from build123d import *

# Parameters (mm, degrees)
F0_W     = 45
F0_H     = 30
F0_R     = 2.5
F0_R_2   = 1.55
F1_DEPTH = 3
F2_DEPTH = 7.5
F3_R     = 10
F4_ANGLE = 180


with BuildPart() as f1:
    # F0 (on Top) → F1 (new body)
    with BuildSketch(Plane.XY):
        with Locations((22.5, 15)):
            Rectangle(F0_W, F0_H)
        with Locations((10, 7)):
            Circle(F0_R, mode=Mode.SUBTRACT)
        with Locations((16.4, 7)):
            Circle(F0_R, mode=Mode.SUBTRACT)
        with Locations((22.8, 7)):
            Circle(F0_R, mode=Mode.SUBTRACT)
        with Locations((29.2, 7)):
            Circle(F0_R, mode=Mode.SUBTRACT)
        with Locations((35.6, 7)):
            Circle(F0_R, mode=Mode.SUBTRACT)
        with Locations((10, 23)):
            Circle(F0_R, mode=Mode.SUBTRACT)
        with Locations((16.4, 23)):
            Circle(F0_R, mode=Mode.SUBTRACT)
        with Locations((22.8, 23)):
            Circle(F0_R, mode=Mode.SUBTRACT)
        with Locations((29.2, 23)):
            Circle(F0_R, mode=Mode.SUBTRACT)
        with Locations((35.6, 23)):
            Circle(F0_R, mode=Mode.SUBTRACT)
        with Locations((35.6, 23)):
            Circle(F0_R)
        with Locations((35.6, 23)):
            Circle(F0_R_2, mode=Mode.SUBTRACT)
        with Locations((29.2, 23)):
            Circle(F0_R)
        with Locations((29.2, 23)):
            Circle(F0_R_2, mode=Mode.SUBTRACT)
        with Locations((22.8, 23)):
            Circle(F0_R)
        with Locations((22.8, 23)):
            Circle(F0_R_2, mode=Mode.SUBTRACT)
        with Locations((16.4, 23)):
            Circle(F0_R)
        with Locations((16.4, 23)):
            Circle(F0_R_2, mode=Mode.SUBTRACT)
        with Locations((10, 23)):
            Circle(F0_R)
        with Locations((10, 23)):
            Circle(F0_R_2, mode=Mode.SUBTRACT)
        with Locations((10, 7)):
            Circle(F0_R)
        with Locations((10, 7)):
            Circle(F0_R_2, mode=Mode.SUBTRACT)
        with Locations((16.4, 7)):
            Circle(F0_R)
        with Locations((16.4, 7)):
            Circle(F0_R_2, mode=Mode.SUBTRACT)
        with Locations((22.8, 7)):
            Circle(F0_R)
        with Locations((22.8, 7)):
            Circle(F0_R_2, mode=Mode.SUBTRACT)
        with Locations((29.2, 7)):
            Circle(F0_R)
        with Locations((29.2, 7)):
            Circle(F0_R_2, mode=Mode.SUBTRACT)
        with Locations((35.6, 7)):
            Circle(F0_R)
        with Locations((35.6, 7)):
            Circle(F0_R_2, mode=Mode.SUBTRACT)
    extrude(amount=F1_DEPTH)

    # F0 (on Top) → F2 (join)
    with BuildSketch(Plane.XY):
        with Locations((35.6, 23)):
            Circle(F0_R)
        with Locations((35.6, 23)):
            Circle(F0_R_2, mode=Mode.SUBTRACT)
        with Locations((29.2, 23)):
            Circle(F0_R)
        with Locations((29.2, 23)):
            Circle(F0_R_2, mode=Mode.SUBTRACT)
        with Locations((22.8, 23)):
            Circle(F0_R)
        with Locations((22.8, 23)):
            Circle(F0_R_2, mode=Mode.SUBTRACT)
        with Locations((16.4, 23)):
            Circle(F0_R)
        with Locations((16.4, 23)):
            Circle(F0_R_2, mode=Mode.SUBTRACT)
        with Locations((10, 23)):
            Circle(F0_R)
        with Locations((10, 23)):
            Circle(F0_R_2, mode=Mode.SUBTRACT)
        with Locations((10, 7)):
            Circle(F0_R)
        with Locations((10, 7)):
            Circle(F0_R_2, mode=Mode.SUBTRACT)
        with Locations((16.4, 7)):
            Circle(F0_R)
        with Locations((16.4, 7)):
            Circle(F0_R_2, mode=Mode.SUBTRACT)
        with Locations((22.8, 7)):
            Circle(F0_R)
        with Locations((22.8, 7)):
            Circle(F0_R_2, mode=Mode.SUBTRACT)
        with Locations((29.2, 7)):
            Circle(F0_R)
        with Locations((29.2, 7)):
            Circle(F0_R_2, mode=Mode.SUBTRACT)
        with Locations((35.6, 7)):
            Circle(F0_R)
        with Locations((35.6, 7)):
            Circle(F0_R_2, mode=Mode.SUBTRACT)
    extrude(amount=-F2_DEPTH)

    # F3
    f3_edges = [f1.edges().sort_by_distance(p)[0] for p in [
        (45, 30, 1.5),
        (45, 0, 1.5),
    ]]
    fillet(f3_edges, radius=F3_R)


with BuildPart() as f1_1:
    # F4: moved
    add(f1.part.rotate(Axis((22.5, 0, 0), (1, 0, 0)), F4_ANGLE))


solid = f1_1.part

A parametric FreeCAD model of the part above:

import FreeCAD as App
import Part
import Sketcher

V = App.Vector
Q = App.Units.Quantity


def edges_at(feature, points):
    """Names of the edges that pass closest to the given points."""
    edges = feature.Shape.Edges
    near = lambda p: min(range(len(edges)), key=lambda i: edges[i].distToShape(Part.Vertex(*p))[0])
    return sorted({f"Edge{near(p) + 1}" for p in points})

doc = App.newDocument("Part")
params = doc.addObject("Spreadsheet::Sheet", "Params")
for row, (alias, value) in enumerate([
    ("sketch1_diameter", "3.1 mm"),
    ("sketch1_width", "45 mm"),
    ("sketch1_height", "30 mm"),
    ("pad1_length", "3 mm"),
    ("sketch2_diameter", "5 mm"),
    ("sketch2_diameter2", "3.1 mm"),
    ("pad2_length", "7.5 mm"),
    ("fillet_radius", "10 mm"),
], start=1):
    params.set(f"A{row}", alias)
    params.set(f"B{row}", "=" + value)
    params.setAlias(f"B{row}", alias)

body = doc.addObject("PartDesign::Body", "Body")

sketch1 = doc.addObject("Sketcher::SketchObject", "Sketch")
body.addObject(sketch1)
sketch1.AttachmentSupport = (doc.XY_Plane, [""])
sketch1.MapMode = "FlatFace"
sketch1.addGeometry([
    Part.LineSegment(V(0, 30, 0), V(0, 0, 0)),
    Part.LineSegment(V(0, 0, 0), V(45, 0, 0)),
    Part.LineSegment(V(45, 0, 0), V(45, 30, 0)),
    Part.LineSegment(V(45, 30, 0), V(0, 30, 0)),
    Part.Circle(V(10, 7, 0), V(0, 0, 1), 1.6),
    Part.Circle(V(16.4, 7, 0), V(0, 0, 1), 1.6),
    Part.Circle(V(22.8, 7, 0), V(0, 0, 1), 1.6),
    Part.Circle(V(29.2, 7, 0), V(0, 0, 1), 1.6),
    Part.Circle(V(35.6, 7, 0), V(0, 0, 1), 1.6),
    Part.Circle(V(10, 23, 0), V(0, 0, 1), 1.6),
    Part.Circle(V(16.4, 23, 0), V(0, 0, 1), 1.6),
    Part.Circle(V(22.8, 23, 0), V(0, 0, 1), 1.6),
    Part.Circle(V(29.2, 23, 0), V(0, 0, 1), 1.6),
    Part.Circle(V(35.6, 23, 0), V(0, 0, 1), 1.6),
], False)
sketch1.addConstraint([
    Sketcher.Constraint("Coincident", 0, 2, 1, 1),
    Sketcher.Constraint("Coincident", 1, 2, 2, 1),
    Sketcher.Constraint("Coincident", 2, 2, 3, 1),
    Sketcher.Constraint("Coincident", 3, 2, 0, 1),
    Sketcher.Constraint("Vertical", 0),
    Sketcher.Constraint("Horizontal", 1),
    Sketcher.Constraint("Vertical", 2),
    Sketcher.Constraint("Horizontal", 3),
    Sketcher.Constraint("Coincident", 0, 2, -1, 1),
    Sketcher.Constraint("Equal", 4, 5),
    Sketcher.Constraint("Equal", 5, 6),
    Sketcher.Constraint("Equal", 6, 7),
    Sketcher.Constraint("Equal", 7, 8),
    Sketcher.Constraint("Equal", 8, 9),
    Sketcher.Constraint("Equal", 9, 10),
    Sketcher.Constraint("Equal", 10, 11),
    Sketcher.Constraint("Equal", 11, 12),
    Sketcher.Constraint("Equal", 12, 13),
    Sketcher.Constraint("Horizontal", 4, 3, 5, 3),
    Sketcher.Constraint("Horizontal", 5, 3, 6, 3),
    Sketcher.Constraint("Horizontal", 6, 3, 7, 3),
    Sketcher.Constraint("Horizontal", 7, 3, 8, 3),
    Sketcher.Constraint("Horizontal", 9, 3, 10, 3),
    Sketcher.Constraint("Horizontal", 10, 3, 11, 3),
    Sketcher.Constraint("Horizontal", 11, 3, 12, 3),
    Sketcher.Constraint("Horizontal", 12, 3, 13, 3),
    Sketcher.Constraint("Vertical", 4, 3, 9, 3),
    Sketcher.Constraint("Vertical", 5, 3, 10, 3),
    Sketcher.Constraint("Vertical", 6, 3, 11, 3),
    Sketcher.Constraint("Vertical", 7, 3, 12, 3),
    Sketcher.Constraint("Vertical", 8, 3, 13, 3),
    Sketcher.Constraint("Diameter", 4, Q("3.1 mm")),
    Sketcher.Constraint("DistanceX", 1, 1, 1, 2, Q("45 mm")),
    Sketcher.Constraint("DistanceY", 0, 2, 0, 1, Q("30 mm")),
    Sketcher.Constraint("DistanceX", -1, 1, 4, 3, Q("10 mm")),
    Sketcher.Constraint("DistanceY", -1, 1, 4, 3, Q("7 mm")),
    Sketcher.Constraint("DistanceY", -1, 1, 9, 3, Q("23 mm")),
    Sketcher.Constraint("DistanceX", -1, 1, 5, 3, Q("16.4 mm")),
    Sketcher.Constraint("DistanceX", -1, 1, 6, 3, Q("22.8 mm")),
    Sketcher.Constraint("DistanceX", -1, 1, 7, 3, Q("29.2 mm")),
    Sketcher.Constraint("DistanceX", -1, 1, 8, 3, Q("35.6 mm")),
])
sketch1.setExpression("Constraints[31]", "Params.sketch1_diameter")
sketch1.setExpression("Constraints[32]", "Params.sketch1_width")
sketch1.setExpression("Constraints[33]", "Params.sketch1_height")
pad1 = doc.addObject("PartDesign::Pad", "Pad")
body.addObject(pad1)
pad1.Profile = sketch1
pad1.setExpression("Length", "Params.pad1_length")

sketch2 = doc.addObject("Sketcher::SketchObject", "Sketch001")
body.addObject(sketch2)
sketch2.AttachmentSupport = (doc.XY_Plane, [""])
sketch2.MapMode = "FlatFace"
sketch2.addGeometry([
    Part.Circle(V(35.6, 23, 0), V(0, 0, 1), 2.5),
    Part.Circle(V(35.6, 23, 0), V(0, 0, 1), 1.6),
    Part.Circle(V(29.2, 23, 0), V(0, 0, 1), 2.5),
    Part.Circle(V(29.2, 23, 0), V(0, 0, 1), 1.6),
    Part.Circle(V(22.8, 23, 0), V(0, 0, 1), 2.5),
    Part.Circle(V(22.8, 23, 0), V(0, 0, 1), 1.6),
    Part.Circle(V(16.4, 23, 0), V(0, 0, 1), 2.5),
    Part.Circle(V(16.4, 23, 0), V(0, 0, 1), 1.6),
    Part.Circle(V(10, 23, 0), V(0, 0, 1), 2.5),
    Part.Circle(V(10, 23, 0), V(0, 0, 1), 1.6),
    Part.Circle(V(10, 7, 0), V(0, 0, 1), 2.5),
    Part.Circle(V(10, 7, 0), V(0, 0, 1), 1.6),
    Part.Circle(V(16.4, 7, 0), V(0, 0, 1), 2.5),
    Part.Circle(V(16.4, 7, 0), V(0, 0, 1), 1.6),
    Part.Circle(V(22.8, 7, 0), V(0, 0, 1), 2.5),
    Part.Circle(V(22.8, 7, 0), V(0, 0, 1), 1.6),
    Part.Circle(V(29.2, 7, 0), V(0, 0, 1), 2.5),
    Part.Circle(V(29.2, 7, 0), V(0, 0, 1), 1.6),
    Part.Circle(V(35.6, 7, 0), V(0, 0, 1), 2.5),
    Part.Circle(V(35.6, 7, 0), V(0, 0, 1), 1.6),
], False)
sketch2.addConstraint([
    Sketcher.Constraint("Coincident", 1, 3, 0, 3),
    Sketcher.Constraint("Coincident", 3, 3, 2, 3),
    Sketcher.Constraint("Coincident", 5, 3, 4, 3),
    Sketcher.Constraint("Coincident", 7, 3, 6, 3),
    Sketcher.Constraint("Coincident", 9, 3, 8, 3),
    Sketcher.Constraint("Coincident", 11, 3, 10, 3),
    Sketcher.Constraint("Coincident", 13, 3, 12, 3),
    Sketcher.Constraint("Coincident", 15, 3, 14, 3),
    Sketcher.Constraint("Coincident", 17, 3, 16, 3),
    Sketcher.Constraint("Coincident", 19, 3, 18, 3),
    Sketcher.Constraint("Equal", 0, 2),
    Sketcher.Constraint("Equal", 1, 3),
    Sketcher.Constraint("Equal", 2, 4),
    Sketcher.Constraint("Equal", 3, 5),
    Sketcher.Constraint("Equal", 4, 6),
    Sketcher.Constraint("Equal", 5, 7),
    Sketcher.Constraint("Equal", 6, 8),
    Sketcher.Constraint("Equal", 7, 9),
    Sketcher.Constraint("Equal", 8, 10),
    Sketcher.Constraint("Equal", 9, 11),
    Sketcher.Constraint("Equal", 10, 12),
    Sketcher.Constraint("Equal", 11, 13),
    Sketcher.Constraint("Equal", 12, 14),
    Sketcher.Constraint("Equal", 13, 15),
    Sketcher.Constraint("Equal", 14, 16),
    Sketcher.Constraint("Equal", 15, 17),
    Sketcher.Constraint("Equal", 16, 18),
    Sketcher.Constraint("Equal", 17, 19),
    Sketcher.Constraint("Horizontal", 1, 3, 2, 3),
    Sketcher.Constraint("Horizontal", 3, 3, 4, 3),
    Sketcher.Constraint("Horizontal", 5, 3, 6, 3),
    Sketcher.Constraint("Horizontal", 7, 3, 8, 3),
    Sketcher.Constraint("Horizontal", 11, 3, 12, 3),
    Sketcher.Constraint("Horizontal", 13, 3, 14, 3),
    Sketcher.Constraint("Horizontal", 15, 3, 16, 3),
    Sketcher.Constraint("Horizontal", 17, 3, 18, 3),
    Sketcher.Constraint("Vertical", 9, 3, 10, 3),
    Sketcher.Constraint("Vertical", 7, 3, 12, 3),
    Sketcher.Constraint("Vertical", 5, 3, 14, 3),
    Sketcher.Constraint("Vertical", 3, 3, 16, 3),
    Sketcher.Constraint("Vertical", 1, 3, 18, 3),
    Sketcher.Constraint("Diameter", 0, Q("5 mm")),
    Sketcher.Constraint("Diameter", 1, Q("3.1 mm")),
    Sketcher.Constraint("DistanceY", -1, 1, 0, 3, Q("23 mm")),
    Sketcher.Constraint("DistanceX", -1, 1, 8, 3, Q("10 mm")),
    Sketcher.Constraint("DistanceY", -1, 1, 10, 3, Q("7 mm")),
    Sketcher.Constraint("DistanceX", -1, 1, 0, 3, Q("35.6 mm")),
    Sketcher.Constraint("DistanceX", -1, 1, 2, 3, Q("29.2 mm")),
    Sketcher.Constraint("DistanceX", -1, 1, 4, 3, Q("22.8 mm")),
    Sketcher.Constraint("DistanceX", -1, 1, 6, 3, Q("16.4 mm")),
])
sketch2.setExpression("Constraints[41]", "Params.sketch2_diameter")
sketch2.setExpression("Constraints[42]", "Params.sketch2_diameter2")
pad2 = doc.addObject("PartDesign::Pad", "Pad001")
body.addObject(pad2)
pad2.Profile = sketch2
pad2.setExpression("Length", "Params.pad2_length")
pad2.Reversed = True
doc.recompute()

fillet = doc.addObject("PartDesign::Fillet", "Fillet")
body.addObject(fillet)
fillet.Base = (pad2, edges_at(pad2, [(45, 30, 1.5), (45, 0, 1.5)]))
fillet.setExpression("Radius", "Params.fillet_radius")
body2 = doc.addObject("PartDesign::Body", "Body001")
doc.recompute()

body.Placement = App.Placement(V(0, 0, 0), App.Rotation(V(1, 0, 0), 180))
boolean = doc.addObject("PartDesign::Boolean", "Boolean")
body2.addObject(boolean)
boolean.Type = "Fuse"
boolean.addObjects([body])

doc.recompute()
